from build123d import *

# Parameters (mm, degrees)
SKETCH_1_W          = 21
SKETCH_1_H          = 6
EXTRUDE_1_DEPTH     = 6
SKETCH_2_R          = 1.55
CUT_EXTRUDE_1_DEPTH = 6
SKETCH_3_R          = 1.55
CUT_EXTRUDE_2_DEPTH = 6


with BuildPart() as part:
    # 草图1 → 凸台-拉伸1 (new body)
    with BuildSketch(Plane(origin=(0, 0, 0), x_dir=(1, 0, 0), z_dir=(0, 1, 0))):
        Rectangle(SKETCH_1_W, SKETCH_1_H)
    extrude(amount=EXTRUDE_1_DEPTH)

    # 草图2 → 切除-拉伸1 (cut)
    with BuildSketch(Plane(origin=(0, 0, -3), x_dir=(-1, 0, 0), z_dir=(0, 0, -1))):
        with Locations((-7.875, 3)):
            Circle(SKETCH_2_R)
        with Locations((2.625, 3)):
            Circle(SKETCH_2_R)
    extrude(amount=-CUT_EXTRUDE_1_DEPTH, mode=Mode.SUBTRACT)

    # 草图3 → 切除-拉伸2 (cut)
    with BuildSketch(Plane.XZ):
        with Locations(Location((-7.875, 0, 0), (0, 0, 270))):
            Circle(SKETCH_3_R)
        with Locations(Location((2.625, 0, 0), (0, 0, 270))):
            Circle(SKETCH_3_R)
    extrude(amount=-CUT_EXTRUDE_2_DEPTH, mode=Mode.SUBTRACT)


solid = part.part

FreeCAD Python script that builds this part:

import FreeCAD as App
import Part
import Sketcher

V = App.Vector


def add_polygon(sketch, points):
    """Adds a closed chain of lines whose ends are joined by coincident constraints."""
    first, n = sketch.GeometryCount, len(points)
    for a, b in zip(points, points[1:] + points[:1]):
        sketch.addGeometry(Part.LineSegment(App.Vector(*a, 0), App.Vector(*b, 0)), False)
    for i in range(n):
        sketch.addConstraint(Sketcher.Constraint("Coincident", first + i, 2, first + (i + 1) % n, 1))

doc = App.newDocument("Part")
body = doc.addObject("PartDesign::Body", "Body")

# Sketch on XZ plane
sketch1 = body.newObject("Sketcher::SketchObject", "Sketch")
sketch1.AttachmentSupport = (doc.getObject("XZ_Plane"), [""])
sketch1.MapMode = "FlatFace"
add_polygon(sketch1, [(-10.5, -3), (-10.5, 3), (10.5, 3), (10.5, -3)])  # lines 0-3
sketch1.addConstraint([
    Sketcher.Constraint("Vertical", 0),
    Sketcher.Constraint("Horizontal", 1),
    Sketcher.Constraint("Vertical", 2),
    Sketcher.Constraint("Horizontal", 3),
    Sketcher.Constraint("Symmetric", 0, 2, 2, 2, -1, 1),
    Sketcher.Constraint("DistanceX", 1, 1, 1, 2, 21.0),
    Sketcher.Constraint("DistanceY", 0, 1, 0, 2, 6.0),
])
pad1 = body.newObject("PartDesign::Pad", "Pad")
pad1.Profile = sketch1
pad1.Length = 6
pad1.Reversed = True

# Sketch on XY plane
sketch2 = body.newObject("Sketcher::SketchObject", "Sketch001")
sketch2.AttachmentSupport = (doc.getObject("XY_Plane"), [""])
sketch2.MapMode = "FlatFace"
sketch2.AttachmentOffset = App.Placement(V(0, 0, -3), App.Rotation())
sketch2.addGeometry([
    Part.Circle(V(7.875, 3, 0), V(0, 0, 1), 1.55),
    Part.Circle(V(-2.625, 3, 0), V(0, 0, 1), 1.55),
], False)
sketch2.addConstraint([
    Sketcher.Constraint("Equal", 0, 1),
    Sketcher.Constraint("Horizontal", 0, 3, 1, 3),
    Sketcher.Constraint("Diameter", 0, 3.1),
    Sketcher.Constraint("DistanceY", -1, 1, 0, 3, 3.0),
    Sketcher.Constraint("DistanceX", 1, 3, 0, 3, 10.5),
    Sketcher.Constraint("DistanceX", -1, 1, 0, 3, 7.875),
])
pocket1 = body.newObject("PartDesign::Pocket", "Pocket")
pocket1.Profile = sketch2
pocket1.Length = 6
pocket1.Reversed = True

# Sketch on XZ plane
sketch3 = body.newObject("Sketcher::SketchObject", "Sketch002")
sketch3.AttachmentSupport = (doc.getObject("XZ_Plane"), [""])
sketch3.MapMode = "FlatFace"
sketch3.addGeometry([
    Part.Circle(V(-7.875, 0, 0), V(0, 0, 1), 1.55),
    Part.Circle(V(2.625, 0, 0), V(0, 0, 1), 1.55),
], False)
sketch3.addConstraint([
    Sketcher.Constraint("Equal", 0, 1),
    Sketcher.Constraint("PointOnObject", 0, 3, -1),
    Sketcher.Constraint("PointOnObject", 1, 3, -1),
    Sketcher.Constraint("Diameter", 0, 3.1),
    Sketcher.Constraint("DistanceX", 0, 3, 1, 3, 10.5),
    Sketcher.Constraint("DistanceX", 0, 3, -1, 1, 7.875),
])
pocket2 = body.newObject("PartDesign::Pocket", "Pocket001")
pocket2.Profile = sketch3
pocket2.Length = 6

doc.recompute()
